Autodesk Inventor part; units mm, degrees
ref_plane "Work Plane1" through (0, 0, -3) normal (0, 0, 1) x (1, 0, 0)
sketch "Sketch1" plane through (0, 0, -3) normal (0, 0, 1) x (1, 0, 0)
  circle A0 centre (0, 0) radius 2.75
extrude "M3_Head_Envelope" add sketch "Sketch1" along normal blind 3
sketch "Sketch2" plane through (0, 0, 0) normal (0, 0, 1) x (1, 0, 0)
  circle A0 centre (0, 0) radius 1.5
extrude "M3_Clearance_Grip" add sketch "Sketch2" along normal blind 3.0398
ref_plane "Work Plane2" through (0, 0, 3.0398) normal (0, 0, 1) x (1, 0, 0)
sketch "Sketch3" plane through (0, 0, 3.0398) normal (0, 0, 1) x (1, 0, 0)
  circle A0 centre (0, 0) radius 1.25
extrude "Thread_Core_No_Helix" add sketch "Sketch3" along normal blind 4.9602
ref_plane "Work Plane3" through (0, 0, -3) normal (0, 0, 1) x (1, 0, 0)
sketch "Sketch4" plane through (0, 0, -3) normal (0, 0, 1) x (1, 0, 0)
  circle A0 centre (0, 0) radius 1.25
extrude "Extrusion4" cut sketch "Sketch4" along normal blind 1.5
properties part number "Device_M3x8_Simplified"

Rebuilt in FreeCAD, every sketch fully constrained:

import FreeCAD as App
import Part
import Sketcher
Q = App.Units.Quantity

doc = App.newDocument("Part")
params = doc.addObject("Spreadsheet::Sheet", "Params")
for row, (alias, value) in enumerate([
    ("sketch1_diameter", "5.5 mm"),
    ("pad1_length", "3 mm"),
    ("sketch2_diameter", "3 mm"),
    ("pad2_length", "3.0398 mm"),
    ("sketch3_diameter", "2.5 mm"),
    ("pad3_length", "4.9602 mm"),
    ("sketch4_diameter", "2.5 mm"),
    ("pocket1_length", "1.5 mm"),
], start=1):
    params.set(f"A{row}", alias)
    params.set(f"B{row}", "=" + value)
    params.setAlias(f"B{row}", alias)

body = doc.addObject("PartDesign::Body", "Body")

# Sketch on XY plane
sketch1 = body.newObject("Sketcher::SketchObject", "Sketch")
sketch1.AttachmentSupport = (doc.getObject("XY_Plane"), [""])
sketch1.MapMode = "FlatFace"
sketch1.AttachmentOffset = App.Placement(App.Vector(0, 0, -3), App.Rotation())
sketch1.addGeometry(Part.Circle(App.Vector(0, 0, 0), App.Vector(0, 0, 1), 2.8), False)
sketch1.addConstraint([
    Sketcher.Constraint("Coincident", 0, 3, -1, 1),
    Sketcher.Constraint("Diameter", 0, Q("5.5 mm")),
])
sketch1.setExpression("Constraints[1]", "Params.sketch1_diameter")
pad1 = body.newObject("PartDesign::Pad", "Pad")
pad1.Profile = sketch1
pad1.setExpression("Length", "Params.pad1_length")

# Sketch on XY plane
sketch2 = body.newObject("Sketcher::SketchObject", "Sketch001")
sketch2.AttachmentSupport = (doc.getObject("XY_Plane"), [""])
sketch2.MapMode = "FlatFace"
sketch2.addGeometry(Part.Circle(App.Vector(0, 0, 0), App.Vector(0, 0, 1), 1.5), False)
sketch2.addConstraint([
    Sketcher.Constraint("Coincident", 0, 3, -1, 1),
    Sketcher.Constraint("Diameter", 0, Q("3 mm")),
])
sketch2.setExpression("Constraints[1]", "Params.sketch2_diameter")
pad2 = body.newObject("PartDesign::Pad", "Pad001")
pad2.Profile = sketch2
pad2.setExpression("Length", "Params.pad2_length")

# Sketch on XY plane
sketch3 = body.newObject("Sketcher::SketchObject", "Sketch002")
sketch3.AttachmentSupport = (doc.getObject("XY_Plane"), [""])
sketch3.MapMode = "FlatFace"
sketch3.AttachmentOffset = App.Placement(App.Vector(0, 0, 3.0398), App.Rotation())
sketch3.addGeometry(Part.Circle(App.Vector(0, 0, 0), App.Vector(0, 0, 1), 1.2), False)
sketch3.addConstraint([
    Sketcher.Constraint("Coincident", 0, 3, -1, 1),
    Sketcher.Constraint("Diameter", 0, Q("2.5 mm")),
])
sketch3.setExpression("Constraints[1]", "Params.sketch3_diameter")
pad3 = body.newObject("PartDesign::Pad", "Pad002")
pad3.Profile = sketch3
pad3.setExpression("Length", "Params.pad3_length")

# Sketch on XY plane
sketch4 = body.newObject("Sketcher::SketchObject", "Sketch003")
sketch4.AttachmentSupport = (doc.getObject("XY_Plane"), [""])
sketch4.MapMode = "FlatFace"
sketch4.AttachmentOffset = App.Placement(App.Vector(0, 0, -3), App.Rotation())
sketch4.addGeometry(Part.Circle(App.Vector(0, 0, 0), App.Vector(0, 0, 1), 1.2), False)
sketch4.addConstraint([
    Sketcher.Constraint("Coincident", 0, 3, -1, 1),
    Sketcher.Constraint("Diameter", 0, Q("2.5 mm")),
])
sketch4.setExpression("Constraints[1]", "Params.sketch4_diameter")
pocket1 = body.newObject("PartDesign::Pocket", "Pocket")
pocket1.Profile = sketch4
pocket1.setExpression("Length", "Params.pocket1_length")
pocket1.Reversed = True

doc.recompute()
